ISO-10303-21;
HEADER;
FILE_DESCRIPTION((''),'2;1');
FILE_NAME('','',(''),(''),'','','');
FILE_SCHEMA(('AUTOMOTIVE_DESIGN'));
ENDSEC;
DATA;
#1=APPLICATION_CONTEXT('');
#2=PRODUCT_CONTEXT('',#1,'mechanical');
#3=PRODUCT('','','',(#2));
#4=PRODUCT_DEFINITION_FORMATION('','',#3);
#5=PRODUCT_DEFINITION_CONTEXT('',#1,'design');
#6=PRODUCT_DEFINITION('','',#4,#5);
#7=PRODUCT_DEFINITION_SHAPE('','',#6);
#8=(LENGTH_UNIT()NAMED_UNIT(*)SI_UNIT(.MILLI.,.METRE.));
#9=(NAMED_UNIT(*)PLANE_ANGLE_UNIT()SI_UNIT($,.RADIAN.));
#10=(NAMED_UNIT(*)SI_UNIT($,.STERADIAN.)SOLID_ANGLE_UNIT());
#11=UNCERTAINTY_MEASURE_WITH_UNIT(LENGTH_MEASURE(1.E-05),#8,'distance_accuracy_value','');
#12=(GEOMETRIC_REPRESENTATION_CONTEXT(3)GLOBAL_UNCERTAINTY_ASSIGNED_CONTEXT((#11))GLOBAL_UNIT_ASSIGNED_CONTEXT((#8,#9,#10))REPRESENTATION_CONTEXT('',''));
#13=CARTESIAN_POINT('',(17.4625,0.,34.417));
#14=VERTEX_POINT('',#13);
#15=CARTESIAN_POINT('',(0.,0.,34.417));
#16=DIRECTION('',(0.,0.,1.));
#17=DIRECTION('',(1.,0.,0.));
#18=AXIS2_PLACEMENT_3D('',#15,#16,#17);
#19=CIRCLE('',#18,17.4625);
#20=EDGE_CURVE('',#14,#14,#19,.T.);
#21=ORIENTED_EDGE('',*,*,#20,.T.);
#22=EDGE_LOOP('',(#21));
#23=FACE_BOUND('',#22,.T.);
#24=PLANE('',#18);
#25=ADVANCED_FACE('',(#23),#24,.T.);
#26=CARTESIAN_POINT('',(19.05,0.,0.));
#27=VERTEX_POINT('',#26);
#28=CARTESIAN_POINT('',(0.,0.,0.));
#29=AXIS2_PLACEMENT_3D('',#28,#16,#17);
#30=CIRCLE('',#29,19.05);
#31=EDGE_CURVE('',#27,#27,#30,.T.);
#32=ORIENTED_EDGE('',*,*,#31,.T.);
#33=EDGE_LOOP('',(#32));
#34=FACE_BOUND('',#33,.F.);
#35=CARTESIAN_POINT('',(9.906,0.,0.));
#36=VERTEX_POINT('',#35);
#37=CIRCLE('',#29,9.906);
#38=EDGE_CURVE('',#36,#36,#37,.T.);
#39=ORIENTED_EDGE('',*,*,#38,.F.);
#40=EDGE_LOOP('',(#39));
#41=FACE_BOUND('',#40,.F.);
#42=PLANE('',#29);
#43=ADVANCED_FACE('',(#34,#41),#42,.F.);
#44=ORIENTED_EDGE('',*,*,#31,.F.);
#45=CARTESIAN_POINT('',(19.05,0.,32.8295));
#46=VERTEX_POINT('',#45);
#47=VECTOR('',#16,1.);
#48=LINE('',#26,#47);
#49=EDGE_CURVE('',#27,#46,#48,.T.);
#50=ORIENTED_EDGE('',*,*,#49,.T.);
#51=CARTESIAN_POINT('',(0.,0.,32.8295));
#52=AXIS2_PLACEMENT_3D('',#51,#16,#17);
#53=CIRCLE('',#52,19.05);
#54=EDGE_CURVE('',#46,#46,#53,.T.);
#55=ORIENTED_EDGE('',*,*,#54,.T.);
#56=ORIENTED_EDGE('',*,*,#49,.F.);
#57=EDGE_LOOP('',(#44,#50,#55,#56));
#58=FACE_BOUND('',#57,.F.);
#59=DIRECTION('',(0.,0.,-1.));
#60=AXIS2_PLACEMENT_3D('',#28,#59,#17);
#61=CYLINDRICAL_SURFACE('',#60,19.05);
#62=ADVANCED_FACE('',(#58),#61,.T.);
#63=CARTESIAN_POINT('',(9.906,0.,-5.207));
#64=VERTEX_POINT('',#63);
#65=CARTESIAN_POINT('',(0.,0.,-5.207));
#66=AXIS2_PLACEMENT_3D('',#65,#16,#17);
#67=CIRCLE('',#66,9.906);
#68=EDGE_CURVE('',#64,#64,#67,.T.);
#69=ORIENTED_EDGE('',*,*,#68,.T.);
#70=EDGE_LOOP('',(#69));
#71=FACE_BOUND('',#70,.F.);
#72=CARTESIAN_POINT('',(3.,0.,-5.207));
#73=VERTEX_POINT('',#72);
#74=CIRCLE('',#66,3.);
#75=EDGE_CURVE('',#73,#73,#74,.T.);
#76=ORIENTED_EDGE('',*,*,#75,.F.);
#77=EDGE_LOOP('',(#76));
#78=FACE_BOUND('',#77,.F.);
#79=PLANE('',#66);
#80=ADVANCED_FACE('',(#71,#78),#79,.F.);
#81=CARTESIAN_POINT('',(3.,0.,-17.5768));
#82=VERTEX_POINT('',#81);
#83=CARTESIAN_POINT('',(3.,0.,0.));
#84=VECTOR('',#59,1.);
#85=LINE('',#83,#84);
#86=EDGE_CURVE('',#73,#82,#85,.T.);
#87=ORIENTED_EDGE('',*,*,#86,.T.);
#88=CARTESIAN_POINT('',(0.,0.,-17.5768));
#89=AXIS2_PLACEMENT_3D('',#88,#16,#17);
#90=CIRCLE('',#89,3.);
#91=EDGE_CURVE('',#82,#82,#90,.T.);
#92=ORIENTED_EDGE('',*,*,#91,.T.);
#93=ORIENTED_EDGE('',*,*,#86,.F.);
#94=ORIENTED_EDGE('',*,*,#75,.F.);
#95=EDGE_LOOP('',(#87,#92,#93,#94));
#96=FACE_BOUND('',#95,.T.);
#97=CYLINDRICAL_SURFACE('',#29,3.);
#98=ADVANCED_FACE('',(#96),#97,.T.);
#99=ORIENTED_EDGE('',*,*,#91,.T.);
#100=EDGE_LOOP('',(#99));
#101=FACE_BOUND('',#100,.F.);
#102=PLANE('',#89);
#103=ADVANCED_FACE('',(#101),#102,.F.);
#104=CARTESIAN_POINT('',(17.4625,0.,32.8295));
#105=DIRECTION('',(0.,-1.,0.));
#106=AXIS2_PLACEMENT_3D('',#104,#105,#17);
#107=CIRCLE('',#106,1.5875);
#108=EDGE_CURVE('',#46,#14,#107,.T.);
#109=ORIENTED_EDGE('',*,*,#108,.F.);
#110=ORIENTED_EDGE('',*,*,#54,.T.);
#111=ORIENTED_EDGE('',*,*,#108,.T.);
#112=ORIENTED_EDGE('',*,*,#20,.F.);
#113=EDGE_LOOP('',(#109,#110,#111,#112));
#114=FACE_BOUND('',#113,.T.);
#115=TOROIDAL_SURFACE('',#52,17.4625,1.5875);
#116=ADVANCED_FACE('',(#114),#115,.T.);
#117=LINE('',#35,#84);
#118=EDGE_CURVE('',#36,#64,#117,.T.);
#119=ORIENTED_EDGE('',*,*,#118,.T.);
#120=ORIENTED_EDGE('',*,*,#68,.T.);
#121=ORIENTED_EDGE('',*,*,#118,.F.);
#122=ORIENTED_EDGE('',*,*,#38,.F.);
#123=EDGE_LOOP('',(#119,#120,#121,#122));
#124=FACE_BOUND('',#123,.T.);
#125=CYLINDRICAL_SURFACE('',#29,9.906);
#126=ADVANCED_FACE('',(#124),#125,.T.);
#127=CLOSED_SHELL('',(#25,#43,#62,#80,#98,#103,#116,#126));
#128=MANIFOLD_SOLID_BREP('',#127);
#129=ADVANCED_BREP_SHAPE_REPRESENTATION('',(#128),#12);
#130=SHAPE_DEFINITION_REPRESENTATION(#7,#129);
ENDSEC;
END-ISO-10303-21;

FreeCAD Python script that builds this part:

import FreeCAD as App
import Part
import Sketcher
from FreeCAD import Vector
Q = App.Units.Quantity


def edges_at(feature, points):
    """Names of the edges that pass closest to the given points."""
    edges = feature.Shape.Edges
    near = lambda p: min(range(len(edges)), key=lambda i: edges[i].distToShape(Part.Vertex(*p))[0])
    return sorted({f"Edge{near(p) + 1}" for p in points})

doc = App.newDocument("Part")
body = doc.addObject("PartDesign::Body", "Body")

sketch1 = body.newObject("Sketcher::SketchObject", "Sketch")
sketch1.AttachmentSupport = (doc.getObject("XY_Plane"), [""])
sketch1.MapMode = "FlatFace"
sketch1.addGeometry(Part.Circle(Vector(0, 0, 0), Vector(0, 0, 1), 19), False)
sketch1.addConstraint([
    Sketcher.Constraint("Coincident", 0, 3, -1, 1),
    Sketcher.Constraint("Diameter", 0, Q("1.5 in")),
])
pad1 = body.newObject("PartDesign::Pad", "Pad")
pad1.Profile = sketch1
pad1.Length = Q("1.355 in")

sketch2 = body.newObject("Sketcher::SketchObject", "Sketch001")
sketch2.AttachmentSupport = (doc.getObject("XY_Plane"), [""])
sketch2.MapMode = "FlatFace"
sketch2.addGeometry([
    Part.Circle(Vector(0, 0, 0), Vector(0, 0, 1), 9.9),
    Part.Circle(Vector(0, 0, 0), Vector(0, 0, 1), 3),
], False)
sketch2.addConstraint([
    Sketcher.Constraint("Coincident", 0, 3, -1, 1),
    Sketcher.Constraint("Coincident", 1, 3, -1, 1),
    Sketcher.Constraint("Diameter", 0, Q("0.78 in")),
    Sketcher.Constraint("Diameter", 1, Q("6 mm")),
])
pad2 = body.newObject("PartDesign::Pad", "Pad001")
pad2.Profile = sketch2
pad2.Length = Q("0.205 in")
pad2.Reversed = True

sketch3 = body.newObject("Sketcher::SketchObject", "Sketch002")
sketch3.AttachmentSupport = (doc.getObject("XY_Plane"), [""])
sketch3.MapMode = "FlatFace"
sketch3.addGeometry(Part.Circle(Vector(0, 0, 0), Vector(0, 0, 1), 3), False)
sketch3.addConstraint([
    Sketcher.Constraint("Coincident", 0, 3, -1, 1),
    Sketcher.Constraint("Diameter", 0, Q("6 mm")),
])
pad3 = body.newObject("PartDesign::Pad", "Pad002")
pad3.Profile = sketch3
pad3.Length = Q("0.692 in")
pad3.Reversed = True
doc.recompute()

fillet = body.newObject("PartDesign::Fillet", "Fillet")
fillet.Base = (pad3, edges_at(pad3, [(-19.05, 0, 34.417)]))
fillet.Radius = Q("0.0625 in")

doc.recompute()
